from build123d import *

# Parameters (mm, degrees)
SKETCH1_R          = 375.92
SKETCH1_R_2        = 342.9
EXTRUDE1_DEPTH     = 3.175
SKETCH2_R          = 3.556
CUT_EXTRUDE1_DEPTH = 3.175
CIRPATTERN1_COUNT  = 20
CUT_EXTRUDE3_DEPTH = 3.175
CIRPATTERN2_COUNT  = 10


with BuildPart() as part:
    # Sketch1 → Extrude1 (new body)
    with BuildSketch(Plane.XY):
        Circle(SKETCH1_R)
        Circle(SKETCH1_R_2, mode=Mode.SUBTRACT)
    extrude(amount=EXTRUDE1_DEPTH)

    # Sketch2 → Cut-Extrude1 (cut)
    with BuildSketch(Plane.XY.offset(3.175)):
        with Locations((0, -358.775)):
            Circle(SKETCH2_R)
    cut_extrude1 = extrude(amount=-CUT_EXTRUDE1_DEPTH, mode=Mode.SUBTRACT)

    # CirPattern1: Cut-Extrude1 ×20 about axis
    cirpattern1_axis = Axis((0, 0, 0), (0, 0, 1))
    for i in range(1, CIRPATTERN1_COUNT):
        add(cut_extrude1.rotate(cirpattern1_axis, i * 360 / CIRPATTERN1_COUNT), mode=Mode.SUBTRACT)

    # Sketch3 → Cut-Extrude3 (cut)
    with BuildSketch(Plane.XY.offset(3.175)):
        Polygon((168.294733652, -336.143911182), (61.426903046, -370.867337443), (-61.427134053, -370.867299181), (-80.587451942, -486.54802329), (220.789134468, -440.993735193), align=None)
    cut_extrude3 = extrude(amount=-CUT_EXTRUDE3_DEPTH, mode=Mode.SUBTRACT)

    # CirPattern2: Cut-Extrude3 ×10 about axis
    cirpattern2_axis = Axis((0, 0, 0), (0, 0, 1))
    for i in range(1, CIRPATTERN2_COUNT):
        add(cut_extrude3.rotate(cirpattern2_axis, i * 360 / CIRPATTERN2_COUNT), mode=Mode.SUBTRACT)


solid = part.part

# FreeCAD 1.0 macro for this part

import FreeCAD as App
import Part
import Sketcher

V = App.Vector
Q = App.Units.Quantity

doc = App.newDocument("Part")
body = doc.addObject("PartDesign::Body", "Body")

# Sketch on XY plane
sketch1 = body.newObject("Sketcher::SketchObject", "Sketch")
sketch1.AttachmentSupport = (doc.getObject("XY_Plane"), [""])
sketch1.MapMode = "FlatFace"
sketch1.addGeometry([
    Part.Circle(V(0, 0, 0), V(0, 0, 1), 376),
    Part.Circle(V(0, 0, 0), V(0, 0, 1), 343),
], False)
sketch1.addConstraint([
    Sketcher.Constraint("Coincident", 0, 3, -1, 1),
    Sketcher.Constraint("Coincident", 1, 3, -1, 1),
    Sketcher.Constraint("Diameter", 1, Q("27 in")),
    Sketcher.Constraint("Diameter", 0, Q("29.6 in")),
])
pad1 = body.newObject("PartDesign::Pad", "Pad")
pad1.Profile = sketch1
pad1.Length = Q("0.125 in")

# Sketch on XY plane
sketch2 = body.newObject("Sketcher::SketchObject", "Sketch001")
sketch2.AttachmentSupport = (doc.getObject("XY_Plane"), [""])
sketch2.MapMode = "FlatFace"
sketch2.AttachmentOffset = App.Placement(V(0, 0, 0.125 * 25.4), App.Rotation())
sketch2.addGeometry(Part.Circle(V(0, -358.8, 0), V(0, 0, 1), 3.6), False)
sketch2.addConstraint([
    Sketcher.Constraint("PointOnObject", 0, 3, -2),
    Sketcher.Constraint("Diameter", 0, Q("0.28 in")),
    Sketcher.Constraint("DistanceY", 0, 3, -1, 1, Q("14.125 in")),
])
pocket1 = body.newObject("PartDesign::Pocket", "Pocket")
pocket1.Profile = sketch2
pocket1.Length = Q("0.125 in")
doc.recompute()

polarpattern = body.newObject("PartDesign::PolarPattern", "PolarPattern")
polarpattern.Originals = [pocket1]
polarpattern.Axis = (doc.getObject("Z_Axis"), [""])
polarpattern.Angle = 360
polarpattern.Occurrences = 20
body.Tip = polarpattern

# Sketch on XY plane
sketch3 = body.newObject("Sketcher::SketchObject", "Sketch002")
sketch3.AttachmentSupport = (doc.getObject("XY_Plane"), [""])
sketch3.MapMode = "FlatFace"
sketch3.AttachmentOffset = App.Placement(V(0, 0, 0.125 * 25.4), App.Rotation())
sketch3.addGeometry([
    Part.LineSegment(V(168, -336, 0), V(61, -371, 0)),  # 0
    Part.LineSegment(V(61, -371, 0), V(-61, -371, 0)),  # 1
    Part.LineSegment(V(-61, -371, 0), V(-81, -487, 0)),  # 2
    Part.LineSegment(V(-81, -487, 0), V(221, -441, 0)),  # 3
    Part.LineSegment(V(221, -441, 0), V(168, -336, 0)),  # 4
], False)
sketch3.addConstraint([
    Sketcher.Constraint("Coincident", 0, 2, 1, 1),
    Sketcher.Constraint("Coincident", 1, 2, 2, 1),
    Sketcher.Constraint("Coincident", 2, 2, 3, 1),
    Sketcher.Constraint("Coincident", 3, 2, 4, 1),
    Sketcher.Constraint("Coincident", 4, 2, 0, 1),
    Sketcher.Constraint("Equal", 2, 4),
    Sketcher.Constraint("Distance", 3, Q("12 in")),
    Sketcher.Constraint("Angle", 0, Q("-162.000018 deg")),
    Sketcher.Constraint("Angle", 1, Q("179.999982 deg")),
    Sketcher.Constraint("DistanceY", 1, 2, -1, 1, Q("370.867299 mm")),
    Sketcher.Constraint("DistanceX", 4, 2, 3, 2, Q("52.494401 mm")),
    Sketcher.Constraint("Distance", 2, Q("117.25676 mm")),
    Sketcher.Constraint("DistanceX", 2, 2, -1, 1, Q("80.587452 mm")),
    Sketcher.Constraint("DistanceY", 4, 2, -1, 1, Q("336.143911 mm")),
    Sketcher.Constraint("DistanceX", 1, 2, 3, 2, Q("282.216269 mm")),
])
pocket2 = body.newObject("PartDesign::Pocket", "Pocket001")
pocket2.Profile = sketch3
pocket2.Length = Q("0.125 in")
doc.recompute()

polarpattern2 = body.newObject("PartDesign::PolarPattern", "PolarPattern001")
polarpattern2.Originals = [pocket2]
polarpattern2.Axis = (doc.getObject("Z_Axis"), [""])
polarpattern2.Angle = 360
polarpattern2.Occurrences = 10
body.Tip = polarpattern2

doc.recompute()
